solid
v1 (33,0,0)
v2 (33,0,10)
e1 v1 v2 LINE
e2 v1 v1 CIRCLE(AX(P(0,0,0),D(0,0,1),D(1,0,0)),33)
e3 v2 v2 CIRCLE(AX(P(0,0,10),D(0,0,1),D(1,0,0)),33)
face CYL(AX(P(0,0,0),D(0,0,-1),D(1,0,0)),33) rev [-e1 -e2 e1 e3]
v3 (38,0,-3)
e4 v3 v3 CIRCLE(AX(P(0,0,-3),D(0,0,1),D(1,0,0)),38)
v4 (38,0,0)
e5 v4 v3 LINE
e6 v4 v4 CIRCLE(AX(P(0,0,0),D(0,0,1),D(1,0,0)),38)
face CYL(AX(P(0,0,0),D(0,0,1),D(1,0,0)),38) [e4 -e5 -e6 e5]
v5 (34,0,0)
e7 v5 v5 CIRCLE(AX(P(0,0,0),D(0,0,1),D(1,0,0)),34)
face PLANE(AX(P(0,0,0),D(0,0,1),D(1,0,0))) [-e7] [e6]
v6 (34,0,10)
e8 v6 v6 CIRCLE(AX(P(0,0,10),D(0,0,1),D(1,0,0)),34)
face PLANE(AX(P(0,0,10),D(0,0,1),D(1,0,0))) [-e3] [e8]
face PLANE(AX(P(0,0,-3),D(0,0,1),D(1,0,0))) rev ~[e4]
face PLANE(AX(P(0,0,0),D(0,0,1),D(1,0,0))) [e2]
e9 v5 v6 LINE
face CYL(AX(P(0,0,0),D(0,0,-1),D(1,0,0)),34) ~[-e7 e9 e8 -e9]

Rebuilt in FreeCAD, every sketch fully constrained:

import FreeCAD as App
import Part
import Sketcher

doc = App.newDocument("Part")
body = doc.addObject("PartDesign::Body", "Body")

# Sketch on XY plane
sketch1 = body.newObject("Sketcher::SketchObject", "Sketch")
sketch1.AttachmentSupport = (doc.getObject("XY_Plane"), [""])
sketch1.MapMode = "FlatFace"
sketch1.addGeometry(Part.Circle(App.Vector(0, 0, 0), App.Vector(0, 0, 1), 34), False)
sketch1.addGeometry(Part.Circle(App.Vector(0, 0, 0), App.Vector(0, 0, 1), 33), False)
sketch1.addConstraint(Sketcher.Constraint("Coincident", 0, 3, -1, 1))
sketch1.addConstraint(Sketcher.Constraint("Coincident", 1, 3, -1, 1))
sketch1.addConstraint(Sketcher.Constraint("Diameter", 0, 68.0))
sketch1.addConstraint(Sketcher.Constraint("Diameter", 1, 66.0))
pad1 = body.newObject("PartDesign::Pad", "Pad")
pad1.Profile = sketch1
pad1.Length = 10

# Sketch on XY plane
sketch2 = body.newObject("Sketcher::SketchObject", "Sketch001")
sketch2.AttachmentSupport = (doc.getObject("XY_Plane"), [""])
sketch2.MapMode = "FlatFace"
sketch2.addGeometry(Part.Circle(App.Vector(0, 0, 0), App.Vector(0, 0, 1), 38), False)
sketch2.addConstraint(Sketcher.Constraint("Coincident", 0, 3, -1, 1))
sketch2.addConstraint(Sketcher.Constraint("Diameter", 0, 76.0))
pad2 = body.newObject("PartDesign::Pad", "Pad001")
pad2.Profile = sketch2
pad2.Length = 3
pad2.Reversed = True

doc.recompute()
